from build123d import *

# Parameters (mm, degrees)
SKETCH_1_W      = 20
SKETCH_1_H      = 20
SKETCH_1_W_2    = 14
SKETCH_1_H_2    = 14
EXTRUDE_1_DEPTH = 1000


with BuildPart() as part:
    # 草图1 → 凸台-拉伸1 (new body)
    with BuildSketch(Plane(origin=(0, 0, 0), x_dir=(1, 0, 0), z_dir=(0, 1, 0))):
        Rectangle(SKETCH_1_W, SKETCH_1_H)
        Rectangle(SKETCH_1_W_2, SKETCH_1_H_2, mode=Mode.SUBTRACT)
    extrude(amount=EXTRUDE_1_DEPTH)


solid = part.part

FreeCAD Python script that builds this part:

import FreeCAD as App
import Part
import Sketcher
from FreeCAD import Vector

doc = App.newDocument("Part")
body = doc.addObject("PartDesign::Body", "Body")

# Sketch on XZ plane
sketch1 = body.newObject("Sketcher::SketchObject", "Sketch")
sketch1.AttachmentSupport = (doc.getObject("XZ_Plane"), [""])
sketch1.MapMode = "FlatFace"
sketch1.addGeometry([
    Part.LineSegment(Vector(-10, -10, 0), Vector(-10, 10, 0)),  # 0
    Part.LineSegment(Vector(-10, 10, 0), Vector(10, 10, 0)),  # 1
    Part.LineSegment(Vector(10, 10, 0), Vector(10, -10, 0)),  # 2
    Part.LineSegment(Vector(10, -10, 0), Vector(-10, -10, 0)),  # 3
    Part.LineSegment(Vector(7, 7, 0), Vector(-7, 7, 0)),  # 4
    Part.LineSegment(Vector(-7, 7, 0), Vector(-7, -7, 0)),  # 5
    Part.LineSegment(Vector(-7, -7, 0), Vector(7, -7, 0)),  # 6
    Part.LineSegment(Vector(7, -7, 0), Vector(7, 7, 0)),  # 7
], False)
sketch1.addConstraint([
    Sketcher.Constraint("Coincident", 0, 2, 1, 1),
    Sketcher.Constraint("Coincident", 1, 2, 2, 1),
    Sketcher.Constraint("Coincident", 2, 2, 3, 1),
    Sketcher.Constraint("Coincident", 3, 2, 0, 1),
    Sketcher.Constraint("Coincident", 4, 2, 5, 1),
    Sketcher.Constraint("Coincident", 5, 2, 6, 1),
    Sketcher.Constraint("Coincident", 6, 2, 7, 1),
    Sketcher.Constraint("Coincident", 7, 2, 4, 1),
    Sketcher.Constraint("Vertical", 0),
    Sketcher.Constraint("Horizontal", 1),
    Sketcher.Constraint("Vertical", 2),
    Sketcher.Constraint("Horizontal", 3),
    Sketcher.Constraint("Horizontal", 4),
    Sketcher.Constraint("Vertical", 5),
    Sketcher.Constraint("Horizontal", 6),
    Sketcher.Constraint("Vertical", 7),
    Sketcher.Constraint("Symmetric", 0, 2, 2, 2, -1, 1),
    Sketcher.Constraint("Symmetric", 4, 2, 6, 2, -1, 1),
    Sketcher.Constraint("Equal", 3, 0),
    Sketcher.Constraint("Equal", 6, 5),
    Sketcher.Constraint("DistanceX", 1, 1, 1, 2, 20.0),
    Sketcher.Constraint("DistanceX", 4, 2, 4, 1, 14.0),
])
pad1 = body.newObject("PartDesign::Pad", "Pad")
pad1.Profile = sketch1
pad1.Length = 1000
pad1.Reversed = True

doc.recompute()
